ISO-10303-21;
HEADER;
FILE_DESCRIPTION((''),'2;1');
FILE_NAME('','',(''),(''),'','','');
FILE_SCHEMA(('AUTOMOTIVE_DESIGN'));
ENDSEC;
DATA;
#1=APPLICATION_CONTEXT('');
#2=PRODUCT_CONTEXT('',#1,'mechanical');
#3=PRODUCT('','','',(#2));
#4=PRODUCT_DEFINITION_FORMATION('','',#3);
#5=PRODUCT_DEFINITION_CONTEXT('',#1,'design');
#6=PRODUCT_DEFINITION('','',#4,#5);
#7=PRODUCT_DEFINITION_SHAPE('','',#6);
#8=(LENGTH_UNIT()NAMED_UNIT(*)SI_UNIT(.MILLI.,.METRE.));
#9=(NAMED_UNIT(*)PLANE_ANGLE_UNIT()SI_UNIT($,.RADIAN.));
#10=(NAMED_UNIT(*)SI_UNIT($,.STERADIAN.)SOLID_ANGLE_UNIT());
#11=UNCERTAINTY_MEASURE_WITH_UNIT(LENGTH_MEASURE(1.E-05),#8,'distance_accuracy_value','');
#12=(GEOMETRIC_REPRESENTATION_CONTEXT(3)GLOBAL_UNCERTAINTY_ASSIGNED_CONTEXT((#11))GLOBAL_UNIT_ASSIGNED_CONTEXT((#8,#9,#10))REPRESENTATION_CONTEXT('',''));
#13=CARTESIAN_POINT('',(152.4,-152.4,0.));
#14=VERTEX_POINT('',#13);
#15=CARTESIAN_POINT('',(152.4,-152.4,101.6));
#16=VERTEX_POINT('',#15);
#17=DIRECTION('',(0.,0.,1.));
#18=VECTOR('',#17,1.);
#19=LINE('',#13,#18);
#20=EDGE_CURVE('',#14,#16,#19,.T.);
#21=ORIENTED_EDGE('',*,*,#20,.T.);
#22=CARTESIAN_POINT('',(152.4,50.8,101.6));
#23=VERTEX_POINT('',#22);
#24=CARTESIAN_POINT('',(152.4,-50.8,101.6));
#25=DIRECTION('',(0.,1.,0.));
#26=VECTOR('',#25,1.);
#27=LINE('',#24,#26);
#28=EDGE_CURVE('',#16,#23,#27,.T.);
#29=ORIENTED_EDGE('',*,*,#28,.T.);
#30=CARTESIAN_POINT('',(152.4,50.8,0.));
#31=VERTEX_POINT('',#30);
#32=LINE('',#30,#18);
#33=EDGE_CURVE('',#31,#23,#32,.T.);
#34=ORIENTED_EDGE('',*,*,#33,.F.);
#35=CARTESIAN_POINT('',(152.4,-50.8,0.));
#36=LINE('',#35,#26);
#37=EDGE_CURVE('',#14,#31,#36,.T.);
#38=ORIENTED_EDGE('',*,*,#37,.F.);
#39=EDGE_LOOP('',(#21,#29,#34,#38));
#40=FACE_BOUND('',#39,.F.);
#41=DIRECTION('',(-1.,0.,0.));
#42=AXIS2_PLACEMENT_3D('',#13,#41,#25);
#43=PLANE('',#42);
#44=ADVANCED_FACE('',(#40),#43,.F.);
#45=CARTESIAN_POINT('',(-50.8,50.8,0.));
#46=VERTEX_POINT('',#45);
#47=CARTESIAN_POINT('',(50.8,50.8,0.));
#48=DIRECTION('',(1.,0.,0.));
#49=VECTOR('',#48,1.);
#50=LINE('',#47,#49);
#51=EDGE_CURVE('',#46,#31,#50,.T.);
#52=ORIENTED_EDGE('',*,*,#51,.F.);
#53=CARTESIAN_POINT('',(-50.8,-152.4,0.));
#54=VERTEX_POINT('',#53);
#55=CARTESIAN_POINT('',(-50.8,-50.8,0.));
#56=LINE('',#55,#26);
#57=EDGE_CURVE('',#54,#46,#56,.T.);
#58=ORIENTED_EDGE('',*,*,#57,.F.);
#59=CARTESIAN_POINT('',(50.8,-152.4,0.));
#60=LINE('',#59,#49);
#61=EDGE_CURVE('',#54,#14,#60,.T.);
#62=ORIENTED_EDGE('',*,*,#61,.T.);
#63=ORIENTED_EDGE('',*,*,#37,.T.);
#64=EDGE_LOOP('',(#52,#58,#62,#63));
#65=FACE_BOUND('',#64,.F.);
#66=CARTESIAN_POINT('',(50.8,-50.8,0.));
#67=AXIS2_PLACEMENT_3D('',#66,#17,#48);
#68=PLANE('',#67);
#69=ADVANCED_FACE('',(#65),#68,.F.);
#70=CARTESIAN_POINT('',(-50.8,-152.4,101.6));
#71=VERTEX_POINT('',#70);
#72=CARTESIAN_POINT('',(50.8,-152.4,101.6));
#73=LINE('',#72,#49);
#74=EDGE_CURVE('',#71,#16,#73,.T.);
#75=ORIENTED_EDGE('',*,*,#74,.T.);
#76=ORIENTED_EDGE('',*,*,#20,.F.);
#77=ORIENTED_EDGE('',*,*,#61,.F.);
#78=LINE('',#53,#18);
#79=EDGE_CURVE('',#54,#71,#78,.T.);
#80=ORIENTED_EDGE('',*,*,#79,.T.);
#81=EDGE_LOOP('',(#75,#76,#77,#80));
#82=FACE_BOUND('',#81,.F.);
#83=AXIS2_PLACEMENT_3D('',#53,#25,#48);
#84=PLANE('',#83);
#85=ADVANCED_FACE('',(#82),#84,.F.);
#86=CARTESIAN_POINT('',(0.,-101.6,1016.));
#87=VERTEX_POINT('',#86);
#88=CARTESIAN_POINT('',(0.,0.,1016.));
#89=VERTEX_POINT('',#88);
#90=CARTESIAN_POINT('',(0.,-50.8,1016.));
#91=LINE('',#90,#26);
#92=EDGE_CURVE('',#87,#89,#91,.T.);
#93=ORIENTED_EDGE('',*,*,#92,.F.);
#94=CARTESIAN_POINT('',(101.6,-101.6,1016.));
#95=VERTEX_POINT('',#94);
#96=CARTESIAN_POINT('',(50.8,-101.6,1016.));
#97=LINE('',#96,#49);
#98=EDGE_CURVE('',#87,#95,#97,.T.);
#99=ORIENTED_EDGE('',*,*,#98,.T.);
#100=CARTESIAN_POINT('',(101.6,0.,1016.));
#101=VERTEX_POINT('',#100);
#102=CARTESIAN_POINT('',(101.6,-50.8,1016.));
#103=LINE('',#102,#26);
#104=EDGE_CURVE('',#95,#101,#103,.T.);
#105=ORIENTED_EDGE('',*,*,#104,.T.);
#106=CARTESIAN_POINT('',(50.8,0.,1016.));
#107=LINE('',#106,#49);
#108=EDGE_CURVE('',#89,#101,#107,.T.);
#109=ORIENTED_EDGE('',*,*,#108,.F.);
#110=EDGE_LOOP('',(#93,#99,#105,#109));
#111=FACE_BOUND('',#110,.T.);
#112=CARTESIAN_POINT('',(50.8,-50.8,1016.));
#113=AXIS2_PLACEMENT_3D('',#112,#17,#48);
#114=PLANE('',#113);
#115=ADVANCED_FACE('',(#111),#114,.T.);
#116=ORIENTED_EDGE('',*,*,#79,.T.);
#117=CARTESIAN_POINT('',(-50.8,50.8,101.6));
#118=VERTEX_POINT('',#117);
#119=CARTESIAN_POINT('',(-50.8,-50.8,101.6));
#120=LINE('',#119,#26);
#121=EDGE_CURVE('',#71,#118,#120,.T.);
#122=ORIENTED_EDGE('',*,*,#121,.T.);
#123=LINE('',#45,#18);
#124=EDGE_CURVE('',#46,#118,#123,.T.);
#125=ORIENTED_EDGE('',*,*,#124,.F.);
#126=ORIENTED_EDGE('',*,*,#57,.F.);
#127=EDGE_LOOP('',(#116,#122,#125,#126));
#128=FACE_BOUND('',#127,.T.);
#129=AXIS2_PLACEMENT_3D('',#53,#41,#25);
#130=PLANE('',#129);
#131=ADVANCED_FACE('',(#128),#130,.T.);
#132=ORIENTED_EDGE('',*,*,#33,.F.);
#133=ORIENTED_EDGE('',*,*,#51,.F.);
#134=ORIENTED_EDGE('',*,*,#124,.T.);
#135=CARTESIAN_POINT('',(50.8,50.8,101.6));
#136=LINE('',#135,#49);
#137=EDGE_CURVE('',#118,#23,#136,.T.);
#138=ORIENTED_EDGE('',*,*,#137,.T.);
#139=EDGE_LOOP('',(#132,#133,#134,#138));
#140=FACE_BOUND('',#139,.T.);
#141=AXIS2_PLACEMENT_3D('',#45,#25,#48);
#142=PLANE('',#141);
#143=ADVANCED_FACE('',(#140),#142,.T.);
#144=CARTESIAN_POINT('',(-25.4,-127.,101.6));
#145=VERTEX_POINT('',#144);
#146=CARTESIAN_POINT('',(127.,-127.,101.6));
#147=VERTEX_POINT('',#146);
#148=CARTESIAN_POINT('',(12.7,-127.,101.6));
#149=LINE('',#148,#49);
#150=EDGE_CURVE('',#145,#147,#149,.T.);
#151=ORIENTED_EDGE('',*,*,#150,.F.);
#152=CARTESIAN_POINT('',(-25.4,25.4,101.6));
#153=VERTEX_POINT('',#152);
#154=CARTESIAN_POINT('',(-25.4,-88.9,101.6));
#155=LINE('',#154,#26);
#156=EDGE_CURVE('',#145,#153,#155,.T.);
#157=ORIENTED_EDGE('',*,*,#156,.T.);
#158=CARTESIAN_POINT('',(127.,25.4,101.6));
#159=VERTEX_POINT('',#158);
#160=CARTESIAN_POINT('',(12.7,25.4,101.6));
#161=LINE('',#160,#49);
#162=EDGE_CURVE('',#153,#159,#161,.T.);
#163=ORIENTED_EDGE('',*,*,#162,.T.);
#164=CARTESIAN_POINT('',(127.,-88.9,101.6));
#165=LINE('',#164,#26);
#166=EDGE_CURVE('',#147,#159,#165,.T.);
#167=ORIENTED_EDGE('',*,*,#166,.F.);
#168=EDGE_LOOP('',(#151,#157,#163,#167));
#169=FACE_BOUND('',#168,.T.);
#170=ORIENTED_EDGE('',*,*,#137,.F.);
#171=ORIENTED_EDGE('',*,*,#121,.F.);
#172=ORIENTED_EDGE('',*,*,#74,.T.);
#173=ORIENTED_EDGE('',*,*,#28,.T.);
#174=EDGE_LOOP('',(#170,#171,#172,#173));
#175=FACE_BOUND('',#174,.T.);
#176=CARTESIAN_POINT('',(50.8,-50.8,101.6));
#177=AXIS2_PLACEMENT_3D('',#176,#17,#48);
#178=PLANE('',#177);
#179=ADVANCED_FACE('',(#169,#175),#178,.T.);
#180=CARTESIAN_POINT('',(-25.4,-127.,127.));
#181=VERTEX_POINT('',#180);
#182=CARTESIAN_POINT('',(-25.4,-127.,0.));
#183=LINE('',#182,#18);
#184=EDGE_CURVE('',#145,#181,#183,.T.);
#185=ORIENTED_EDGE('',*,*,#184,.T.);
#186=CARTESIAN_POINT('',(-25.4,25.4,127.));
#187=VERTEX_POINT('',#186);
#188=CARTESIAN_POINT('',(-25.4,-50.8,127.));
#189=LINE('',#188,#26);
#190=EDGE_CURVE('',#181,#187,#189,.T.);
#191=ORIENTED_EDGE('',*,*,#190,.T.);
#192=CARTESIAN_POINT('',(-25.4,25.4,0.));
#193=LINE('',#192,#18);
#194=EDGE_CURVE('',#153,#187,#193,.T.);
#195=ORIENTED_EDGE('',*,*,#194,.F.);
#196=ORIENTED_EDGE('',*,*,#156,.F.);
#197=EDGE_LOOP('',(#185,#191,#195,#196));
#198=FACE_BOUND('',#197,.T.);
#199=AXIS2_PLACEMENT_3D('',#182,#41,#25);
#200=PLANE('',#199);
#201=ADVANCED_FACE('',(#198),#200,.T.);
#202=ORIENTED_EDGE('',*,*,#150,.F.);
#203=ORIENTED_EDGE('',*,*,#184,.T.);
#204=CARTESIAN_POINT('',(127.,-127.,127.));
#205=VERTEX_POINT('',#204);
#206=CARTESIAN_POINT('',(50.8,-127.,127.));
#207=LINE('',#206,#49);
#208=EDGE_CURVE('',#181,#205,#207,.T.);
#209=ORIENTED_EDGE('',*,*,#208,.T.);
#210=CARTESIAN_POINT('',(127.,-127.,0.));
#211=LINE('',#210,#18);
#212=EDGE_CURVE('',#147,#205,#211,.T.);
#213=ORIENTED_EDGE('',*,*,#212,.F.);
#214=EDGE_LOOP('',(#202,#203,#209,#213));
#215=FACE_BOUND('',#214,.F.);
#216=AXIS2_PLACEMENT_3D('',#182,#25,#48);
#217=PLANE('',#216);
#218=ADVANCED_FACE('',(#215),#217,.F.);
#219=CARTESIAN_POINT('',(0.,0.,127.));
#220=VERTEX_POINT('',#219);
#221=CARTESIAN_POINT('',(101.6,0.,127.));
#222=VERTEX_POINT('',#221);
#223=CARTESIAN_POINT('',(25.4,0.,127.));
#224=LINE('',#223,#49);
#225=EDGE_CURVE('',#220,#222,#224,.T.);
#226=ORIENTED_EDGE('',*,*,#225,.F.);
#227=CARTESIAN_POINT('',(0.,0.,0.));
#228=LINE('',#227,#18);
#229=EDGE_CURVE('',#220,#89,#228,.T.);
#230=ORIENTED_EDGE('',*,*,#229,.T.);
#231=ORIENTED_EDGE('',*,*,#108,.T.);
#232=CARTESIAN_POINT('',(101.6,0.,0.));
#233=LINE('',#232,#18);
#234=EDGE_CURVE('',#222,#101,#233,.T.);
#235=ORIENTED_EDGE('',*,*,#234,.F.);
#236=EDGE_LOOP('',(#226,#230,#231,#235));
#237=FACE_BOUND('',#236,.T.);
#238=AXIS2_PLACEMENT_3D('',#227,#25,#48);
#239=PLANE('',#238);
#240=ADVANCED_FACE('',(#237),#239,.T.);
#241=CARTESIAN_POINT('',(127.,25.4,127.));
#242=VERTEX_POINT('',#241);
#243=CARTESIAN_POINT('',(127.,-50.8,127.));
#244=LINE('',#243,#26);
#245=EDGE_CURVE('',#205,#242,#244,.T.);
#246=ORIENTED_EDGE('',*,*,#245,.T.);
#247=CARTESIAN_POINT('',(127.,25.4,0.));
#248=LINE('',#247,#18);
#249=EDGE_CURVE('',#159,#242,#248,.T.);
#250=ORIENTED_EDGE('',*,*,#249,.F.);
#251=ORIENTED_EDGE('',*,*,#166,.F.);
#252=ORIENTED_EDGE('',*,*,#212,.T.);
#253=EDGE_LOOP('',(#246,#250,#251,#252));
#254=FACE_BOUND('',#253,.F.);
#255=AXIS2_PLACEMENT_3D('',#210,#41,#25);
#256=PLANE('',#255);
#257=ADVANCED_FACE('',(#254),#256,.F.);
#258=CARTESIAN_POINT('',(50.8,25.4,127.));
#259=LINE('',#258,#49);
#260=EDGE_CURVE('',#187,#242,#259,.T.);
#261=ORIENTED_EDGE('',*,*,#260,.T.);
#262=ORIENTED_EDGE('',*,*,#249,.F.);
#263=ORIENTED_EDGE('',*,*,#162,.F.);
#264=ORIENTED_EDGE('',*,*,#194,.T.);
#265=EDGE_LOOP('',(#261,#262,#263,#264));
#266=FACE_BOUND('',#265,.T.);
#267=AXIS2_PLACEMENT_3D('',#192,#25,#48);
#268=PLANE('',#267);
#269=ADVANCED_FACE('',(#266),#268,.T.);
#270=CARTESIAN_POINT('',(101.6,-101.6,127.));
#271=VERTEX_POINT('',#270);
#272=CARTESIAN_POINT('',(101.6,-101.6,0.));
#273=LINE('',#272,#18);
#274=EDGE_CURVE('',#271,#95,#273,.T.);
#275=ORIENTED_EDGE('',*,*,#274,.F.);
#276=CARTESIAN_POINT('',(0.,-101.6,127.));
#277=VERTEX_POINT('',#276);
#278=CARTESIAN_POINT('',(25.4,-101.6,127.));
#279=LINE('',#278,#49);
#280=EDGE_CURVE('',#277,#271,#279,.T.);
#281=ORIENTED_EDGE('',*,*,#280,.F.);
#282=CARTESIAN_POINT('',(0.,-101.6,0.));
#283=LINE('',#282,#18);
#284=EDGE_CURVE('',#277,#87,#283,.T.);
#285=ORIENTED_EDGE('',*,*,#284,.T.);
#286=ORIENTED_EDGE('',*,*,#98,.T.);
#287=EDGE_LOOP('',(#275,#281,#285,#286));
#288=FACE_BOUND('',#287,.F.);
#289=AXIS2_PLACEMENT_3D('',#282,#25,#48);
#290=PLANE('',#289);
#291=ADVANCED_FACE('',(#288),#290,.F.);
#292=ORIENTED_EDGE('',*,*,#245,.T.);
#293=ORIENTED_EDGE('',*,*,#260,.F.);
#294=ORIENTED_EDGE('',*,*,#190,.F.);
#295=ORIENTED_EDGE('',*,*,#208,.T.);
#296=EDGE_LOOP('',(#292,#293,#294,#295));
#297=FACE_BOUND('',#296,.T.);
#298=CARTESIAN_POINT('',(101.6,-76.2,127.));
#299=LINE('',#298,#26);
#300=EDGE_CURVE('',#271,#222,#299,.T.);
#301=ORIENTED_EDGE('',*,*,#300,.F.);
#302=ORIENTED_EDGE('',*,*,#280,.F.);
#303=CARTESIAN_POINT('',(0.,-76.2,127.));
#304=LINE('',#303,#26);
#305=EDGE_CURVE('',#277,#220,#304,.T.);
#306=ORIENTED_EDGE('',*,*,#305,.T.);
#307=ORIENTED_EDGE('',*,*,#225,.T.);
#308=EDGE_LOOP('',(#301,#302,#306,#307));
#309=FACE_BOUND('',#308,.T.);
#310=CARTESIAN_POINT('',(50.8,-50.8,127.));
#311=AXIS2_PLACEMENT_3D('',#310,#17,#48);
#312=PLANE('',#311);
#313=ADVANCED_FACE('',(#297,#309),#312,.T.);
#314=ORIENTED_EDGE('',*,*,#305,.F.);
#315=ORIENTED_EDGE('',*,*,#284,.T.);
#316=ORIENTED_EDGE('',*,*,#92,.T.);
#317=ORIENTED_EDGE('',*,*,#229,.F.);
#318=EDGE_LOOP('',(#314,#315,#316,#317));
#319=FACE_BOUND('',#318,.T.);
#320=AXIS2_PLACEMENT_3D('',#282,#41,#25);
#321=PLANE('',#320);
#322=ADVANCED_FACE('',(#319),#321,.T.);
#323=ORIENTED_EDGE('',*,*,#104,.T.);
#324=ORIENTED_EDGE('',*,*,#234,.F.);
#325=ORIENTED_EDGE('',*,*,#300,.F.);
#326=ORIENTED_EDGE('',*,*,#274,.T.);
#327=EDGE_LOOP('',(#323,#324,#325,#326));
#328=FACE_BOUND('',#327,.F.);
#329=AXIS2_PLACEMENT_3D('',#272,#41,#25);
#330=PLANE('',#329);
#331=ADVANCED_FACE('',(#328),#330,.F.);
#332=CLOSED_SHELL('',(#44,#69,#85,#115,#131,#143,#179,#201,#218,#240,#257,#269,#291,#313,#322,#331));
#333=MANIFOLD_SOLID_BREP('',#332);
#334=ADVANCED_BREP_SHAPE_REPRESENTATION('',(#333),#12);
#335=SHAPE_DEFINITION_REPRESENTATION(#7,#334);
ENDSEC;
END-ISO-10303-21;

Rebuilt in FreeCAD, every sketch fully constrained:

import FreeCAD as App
import Part
import Sketcher

V = App.Vector
Q = App.Units.Quantity

doc = App.newDocument("Part")
body = doc.addObject("PartDesign::Body", "Body")

sketch1 = body.newObject("Sketcher::SketchObject", "Sketch")
sketch1.AttachmentSupport = (doc.getObject("XY_Plane"), [""])
sketch1.MapMode = "FlatFace"
sketch1.addGeometry([
    Part.LineSegment(V(0, 0, 0), V(0, -101.6, 0)),
    Part.LineSegment(V(0, -101.6, 0), V(101.6, -101.6, 0)),
    Part.LineSegment(V(101.6, -101.6, 0), V(101.6, 0, 0)),
    Part.LineSegment(V(101.6, 0, 0), V(0, 0, 0)),
], False)
sketch1.addConstraint([
    Sketcher.Constraint("Coincident", 0, 2, 1, 1),
    Sketcher.Constraint("Coincident", 1, 2, 2, 1),
    Sketcher.Constraint("Coincident", 2, 2, 3, 1),
    Sketcher.Constraint("Coincident", 3, 2, 0, 1),
    Sketcher.Constraint("Vertical", 0),
    Sketcher.Constraint("Horizontal", 1),
    Sketcher.Constraint("Vertical", 2),
    Sketcher.Constraint("Horizontal", 3),
    Sketcher.Constraint("Coincident", 3, 2, -1, 1),
    Sketcher.Constraint("Equal", 3, 0),
    Sketcher.Constraint("DistanceX", 1, 1, 1, 2, Q("4 in")),
])
pad1 = body.newObject("PartDesign::Pad", "Pad")
pad1.Profile = sketch1
pad1.Length = Q("40 in")

sketch2 = body.newObject("Sketcher::SketchObject", "Sketch001")
sketch2.AttachmentSupport = (doc.getObject("XY_Plane"), [""])
sketch2.MapMode = "FlatFace"
sketch2.addGeometry([
    Part.LineSegment(V(-25.4, 25.4, 0), V(-25.4, -127, 0)),
    Part.LineSegment(V(-25.4, -127, 0), V(127, -127, 0)),
    Part.LineSegment(V(127, -127, 0), V(127, 25.4, 0)),
    Part.LineSegment(V(127, 25.4, 0), V(-25.4, 25.4, 0)),
], False)
sketch2.addConstraint([
    Sketcher.Constraint("Coincident", 0, 2, 1, 1),
    Sketcher.Constraint("Coincident", 1, 2, 2, 1),
    Sketcher.Constraint("Coincident", 2, 2, 3, 1),
    Sketcher.Constraint("Coincident", 3, 2, 0, 1),
    Sketcher.Constraint("Vertical", 0),
    Sketcher.Constraint("Horizontal", 1),
    Sketcher.Constraint("Vertical", 2),
    Sketcher.Constraint("Horizontal", 3),
    Sketcher.Constraint("Equal", 3, 0),
    Sketcher.Constraint("DistanceX", 1, 1, 1, 2, Q("6 in")),
    Sketcher.Constraint("DistanceX", 0, 2, -1, 1, Q("1 in")),
    Sketcher.Constraint("DistanceY", 0, 2, -1, 1, Q("5 in")),
])
pad2 = body.newObject("PartDesign::Pad", "Pad001")
pad2.Profile = sketch2
pad2.Length = Q("5 in")

sketch3 = body.newObject("Sketcher::SketchObject", "Sketch002")
sketch3.AttachmentSupport = (doc.getObject("XY_Plane"), [""])
sketch3.MapMode = "FlatFace"
sketch3.addGeometry([
    Part.LineSegment(V(-50.8, 50.8, 0), V(-50.8, -152.4, 0)),
    Part.LineSegment(V(-50.8, -152.4, 0), V(152.4, -152.4, 0)),
    Part.LineSegment(V(152.4, -152.4, 0), V(152.4, 50.8, 0)),
    Part.LineSegment(V(152.4, 50.8, 0), V(-50.8, 50.8, 0)),
], False)
sketch3.addConstraint([
    Sketcher.Constraint("Coincident", 0, 2, 1, 1),
    Sketcher.Constraint("Coincident", 1, 2, 2, 1),
    Sketcher.Constraint("Coincident", 2, 2, 3, 1),
    Sketcher.Constraint("Coincident", 3, 2, 0, 1),
    Sketcher.Constraint("Vertical", 0),
    Sketcher.Constraint("Horizontal", 1),
    Sketcher.Constraint("Vertical", 2),
    Sketcher.Constraint("Horizontal", 3),
    Sketcher.Constraint("Equal", 3, 0),
    Sketcher.Constraint("DistanceX", 1, 1, 1, 2, Q("8 in")),
    Sketcher.Constraint("DistanceX", 0, 2, -1, 1, Q("2 in")),
    Sketcher.Constraint("DistanceY", 0, 2, -1, 1, Q("6 in")),
])
pad3 = body.newObject("PartDesign::Pad", "Pad002")
pad3.Profile = sketch3
pad3.Length = Q("4 in")

doc.recompute()
